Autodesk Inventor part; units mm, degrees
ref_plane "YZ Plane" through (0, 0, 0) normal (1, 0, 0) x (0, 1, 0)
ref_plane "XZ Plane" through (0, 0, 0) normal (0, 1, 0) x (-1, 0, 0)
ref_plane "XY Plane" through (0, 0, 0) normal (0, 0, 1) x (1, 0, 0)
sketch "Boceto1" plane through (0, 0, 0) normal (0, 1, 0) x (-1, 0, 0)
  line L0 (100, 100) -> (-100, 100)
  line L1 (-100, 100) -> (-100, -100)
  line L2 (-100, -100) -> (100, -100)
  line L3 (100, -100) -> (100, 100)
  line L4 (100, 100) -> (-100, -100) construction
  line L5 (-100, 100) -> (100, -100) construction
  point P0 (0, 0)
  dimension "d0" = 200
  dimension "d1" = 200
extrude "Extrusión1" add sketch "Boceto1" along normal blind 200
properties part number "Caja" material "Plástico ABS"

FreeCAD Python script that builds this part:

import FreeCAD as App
import Part
import Sketcher
from FreeCAD import Vector

doc = App.newDocument("Part")
params = doc.addObject("Spreadsheet::Sheet", "Params")
for row, (alias, value) in enumerate([
    ("sketch1_width", "200 mm"),
    ("pad1_length", "200 mm"),
], start=1):
    params.set(f"A{row}", alias)
    params.set(f"B{row}", "=" + value)
    params.setAlias(f"B{row}", alias)

body = doc.addObject("PartDesign::Body", "Body")

# Sketch on XZ plane
sketch1 = body.newObject("Sketcher::SketchObject", "Sketch")
sketch1.AttachmentSupport = (doc.getObject("XZ_Plane"), [""])
sketch1.MapMode = "FlatFace"
sketch1.addGeometry([
    Part.LineSegment(Vector(-100, -100, 0), Vector(-100, 100, 0)),
    Part.LineSegment(Vector(-100, 100, 0), Vector(100, 100, 0)),
    Part.LineSegment(Vector(100, 100, 0), Vector(100, -100, 0)),
    Part.LineSegment(Vector(100, -100, 0), Vector(-100, -100, 0)),
], False)
sketch1.addConstraint([
    Sketcher.Constraint("Coincident", 0, 2, 1, 1),
    Sketcher.Constraint("Coincident", 1, 2, 2, 1),
    Sketcher.Constraint("Coincident", 2, 2, 3, 1),
    Sketcher.Constraint("Coincident", 3, 2, 0, 1),
    Sketcher.Constraint("Vertical", 0),
    Sketcher.Constraint("Horizontal", 1),
    Sketcher.Constraint("Vertical", 2),
    Sketcher.Constraint("Horizontal", 3),
    Sketcher.Constraint("Symmetric", 0, 2, 2, 2, -1, 1),
    Sketcher.Constraint("Equal", 3, 0),
    Sketcher.Constraint("DistanceX", 1, 1, 1, 2, 200.0),
])
sketch1.setExpression("Constraints[10]", "Params.sketch1_width")
pad1 = body.newObject("PartDesign::Pad", "Pad")
pad1.Profile = sketch1
pad1.setExpression("Length", "Params.pad1_length")
pad1.Reversed = True

doc.recompute()
